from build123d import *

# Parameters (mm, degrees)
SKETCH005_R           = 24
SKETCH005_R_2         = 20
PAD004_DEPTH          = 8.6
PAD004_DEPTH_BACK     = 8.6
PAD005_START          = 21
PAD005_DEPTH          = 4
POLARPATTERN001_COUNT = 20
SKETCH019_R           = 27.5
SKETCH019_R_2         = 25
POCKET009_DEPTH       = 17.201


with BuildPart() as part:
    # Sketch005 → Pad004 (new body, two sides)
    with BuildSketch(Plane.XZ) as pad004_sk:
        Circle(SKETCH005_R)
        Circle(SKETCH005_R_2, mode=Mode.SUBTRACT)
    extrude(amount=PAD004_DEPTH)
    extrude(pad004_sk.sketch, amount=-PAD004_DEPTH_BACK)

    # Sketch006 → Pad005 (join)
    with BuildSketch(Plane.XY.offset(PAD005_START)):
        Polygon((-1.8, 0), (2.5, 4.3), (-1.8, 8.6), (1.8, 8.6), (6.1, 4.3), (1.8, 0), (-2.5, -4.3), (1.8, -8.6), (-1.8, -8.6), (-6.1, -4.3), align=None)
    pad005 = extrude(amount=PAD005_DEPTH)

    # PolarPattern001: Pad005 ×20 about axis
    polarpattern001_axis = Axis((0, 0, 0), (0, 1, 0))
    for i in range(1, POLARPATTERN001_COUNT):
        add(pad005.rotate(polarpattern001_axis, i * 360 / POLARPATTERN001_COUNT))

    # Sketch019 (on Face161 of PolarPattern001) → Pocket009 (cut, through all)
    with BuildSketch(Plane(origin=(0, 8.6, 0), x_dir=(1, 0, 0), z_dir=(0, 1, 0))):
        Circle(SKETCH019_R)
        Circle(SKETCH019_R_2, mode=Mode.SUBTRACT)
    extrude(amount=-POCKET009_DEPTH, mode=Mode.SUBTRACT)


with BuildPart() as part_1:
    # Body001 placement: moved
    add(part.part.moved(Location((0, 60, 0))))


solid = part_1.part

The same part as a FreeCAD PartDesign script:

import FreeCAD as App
import Part
import Sketcher
from FreeCAD import Vector
Q = App.Units.Quantity

doc = App.newDocument("Part")
body = doc.addObject("PartDesign::Body", "Body")

sketch1 = body.newObject("Sketcher::SketchObject", "Sketch")
sketch1.AttachmentSupport = (doc.getObject("XZ_Plane"), [""])
sketch1.MapMode = "FlatFace"
sketch1.addGeometry([
    Part.Circle(Vector(0, 0, 0), Vector(0, 0, 1), 24),
    Part.Circle(Vector(0, 0, 0), Vector(0, 0, 1), 20),
], False)
sketch1.addConstraint([
    Sketcher.Constraint("Coincident", 0, 3, -1, 1),
    Sketcher.Constraint("Coincident", 1, 3, -1, 1),
    Sketcher.Constraint("Diameter", 0, 48.0),
    Sketcher.Constraint("Diameter", 1, 40.0),
])
pad1 = body.newObject("PartDesign::Pad", "Pad")
pad1.Profile = sketch1
pad1.Type = "TwoLengths"
pad1.Length = 8.6
pad1.Length2 = 8.6

sketch2 = body.newObject("Sketcher::SketchObject", "Sketch001")
sketch2.AttachmentSupport = (doc.getObject("XY_Plane"), [""])
sketch2.MapMode = "FlatFace"
sketch2.AttachmentOffset = App.Placement(Vector(0, 0, 21), App.Rotation())
sketch2.addGeometry([
    Part.LineSegment(Vector(2.5, 4.3, 0), Vector(-6.1, -4.3, 0)),
    Part.LineSegment(Vector(-6.1, -4.3, 0), Vector(-1.8, -8.6, 0)),
    Part.LineSegment(Vector(-1.8, -8.6, 0), Vector(1.8, -8.6, 0)),
    Part.LineSegment(Vector(1.8, -8.6, 0), Vector(-2.5, -4.3, 0)),
    Part.LineSegment(Vector(-2.5, -4.3, 0), Vector(6.1, 4.3, 0)),
    Part.LineSegment(Vector(6.1, 4.3, 0), Vector(1.8, 8.6, 0)),
    Part.LineSegment(Vector(1.8, 8.6, 0), Vector(-1.8, 8.6, 0)),
    Part.LineSegment(Vector(-1.8, 8.6, 0), Vector(2.5, 4.3, 0)),
], False)
sketch2.addConstraint([
    Sketcher.Constraint("Coincident", 0, 2, 1, 1),
    Sketcher.Constraint("Coincident", 1, 2, 2, 1),
    Sketcher.Constraint("Coincident", 2, 2, 3, 1),
    Sketcher.Constraint("Coincident", 3, 2, 4, 1),
    Sketcher.Constraint("Coincident", 4, 2, 5, 1),
    Sketcher.Constraint("Coincident", 5, 2, 6, 1),
    Sketcher.Constraint("Coincident", 6, 2, 7, 1),
    Sketcher.Constraint("Coincident", 7, 2, 0, 1),
    Sketcher.Constraint("Horizontal", 2),
    Sketcher.Constraint("Horizontal", 6),
    Sketcher.Constraint("Symmetric", 0, 2, 4, 2, -1, 1),
    Sketcher.Constraint("Symmetric", 1, 2, 5, 2, -1, 1),
    Sketcher.Constraint("Symmetric", 3, 2, 7, 2, -1, 1),
    Sketcher.Constraint("Perpendicular", 0, 1),
    Sketcher.Constraint("Parallel", 1, 3),
    Sketcher.Constraint("Parallel", 5, 7),
    Sketcher.Constraint("Horizontal", 0, 2, 3, 2),
    Sketcher.Constraint("Vertical", 2, 2, 5, 2),
    Sketcher.Constraint("Angle", 0, Q("-135 deg")),
    Sketcher.Constraint("DistanceX", 2, 1, 2, 2, 3.6),
    Sketcher.Constraint("DistanceX", 3, 2, 7, 2, 5.0),
])
pad2 = body.newObject("PartDesign::Pad", "Pad001")
pad2.Profile = sketch2
pad2.Length = 4
doc.recompute()

polarpattern = body.newObject("PartDesign::PolarPattern", "PolarPattern")
polarpattern.Originals = [pad2]
polarpattern.Axis = (doc.getObject("Y_Axis"), [""])
polarpattern.Angle = 360
polarpattern.Occurrences = 20
body.Tip = polarpattern

sketch3 = body.newObject("Sketcher::SketchObject", "Sketch002")
sketch3.AttachmentSupport = (doc.getObject("XZ_Plane"), [""])
sketch3.MapMode = "FlatFace"
sketch3.AttachmentOffset = App.Placement(Vector(0, 0, -8.6), App.Rotation())
sketch3.addGeometry([
    Part.Circle(Vector(0, 0, 0), Vector(0, 0, 1), 28),
    Part.Circle(Vector(0, 0, 0), Vector(0, 0, 1), 25),
], False)
sketch3.addConstraint([
    Sketcher.Constraint("Coincident", 0, 3, -1, 1),
    Sketcher.Constraint("Coincident", 1, 3, -1, 1),
    Sketcher.Constraint("Diameter", 0, 55.0),
    Sketcher.Constraint("Diameter", 1, 50.0),
])
pocket1 = body.newObject("PartDesign::Pocket", "Pocket")
pocket1.Profile = sketch3
pocket1.Type = "ThroughAll"
pocket1.Reversed = True
body2 = doc.addObject("PartDesign::Body", "Body001")
doc.recompute()

body.Placement = App.Placement(Vector(0, 60, 0), App.Rotation(Vector(0, 0, 1), 0))
boolean = body2.newObject("PartDesign::Boolean", "Boolean")
boolean.Type = "Fuse"
boolean.addObjects([body])

doc.recompute()
